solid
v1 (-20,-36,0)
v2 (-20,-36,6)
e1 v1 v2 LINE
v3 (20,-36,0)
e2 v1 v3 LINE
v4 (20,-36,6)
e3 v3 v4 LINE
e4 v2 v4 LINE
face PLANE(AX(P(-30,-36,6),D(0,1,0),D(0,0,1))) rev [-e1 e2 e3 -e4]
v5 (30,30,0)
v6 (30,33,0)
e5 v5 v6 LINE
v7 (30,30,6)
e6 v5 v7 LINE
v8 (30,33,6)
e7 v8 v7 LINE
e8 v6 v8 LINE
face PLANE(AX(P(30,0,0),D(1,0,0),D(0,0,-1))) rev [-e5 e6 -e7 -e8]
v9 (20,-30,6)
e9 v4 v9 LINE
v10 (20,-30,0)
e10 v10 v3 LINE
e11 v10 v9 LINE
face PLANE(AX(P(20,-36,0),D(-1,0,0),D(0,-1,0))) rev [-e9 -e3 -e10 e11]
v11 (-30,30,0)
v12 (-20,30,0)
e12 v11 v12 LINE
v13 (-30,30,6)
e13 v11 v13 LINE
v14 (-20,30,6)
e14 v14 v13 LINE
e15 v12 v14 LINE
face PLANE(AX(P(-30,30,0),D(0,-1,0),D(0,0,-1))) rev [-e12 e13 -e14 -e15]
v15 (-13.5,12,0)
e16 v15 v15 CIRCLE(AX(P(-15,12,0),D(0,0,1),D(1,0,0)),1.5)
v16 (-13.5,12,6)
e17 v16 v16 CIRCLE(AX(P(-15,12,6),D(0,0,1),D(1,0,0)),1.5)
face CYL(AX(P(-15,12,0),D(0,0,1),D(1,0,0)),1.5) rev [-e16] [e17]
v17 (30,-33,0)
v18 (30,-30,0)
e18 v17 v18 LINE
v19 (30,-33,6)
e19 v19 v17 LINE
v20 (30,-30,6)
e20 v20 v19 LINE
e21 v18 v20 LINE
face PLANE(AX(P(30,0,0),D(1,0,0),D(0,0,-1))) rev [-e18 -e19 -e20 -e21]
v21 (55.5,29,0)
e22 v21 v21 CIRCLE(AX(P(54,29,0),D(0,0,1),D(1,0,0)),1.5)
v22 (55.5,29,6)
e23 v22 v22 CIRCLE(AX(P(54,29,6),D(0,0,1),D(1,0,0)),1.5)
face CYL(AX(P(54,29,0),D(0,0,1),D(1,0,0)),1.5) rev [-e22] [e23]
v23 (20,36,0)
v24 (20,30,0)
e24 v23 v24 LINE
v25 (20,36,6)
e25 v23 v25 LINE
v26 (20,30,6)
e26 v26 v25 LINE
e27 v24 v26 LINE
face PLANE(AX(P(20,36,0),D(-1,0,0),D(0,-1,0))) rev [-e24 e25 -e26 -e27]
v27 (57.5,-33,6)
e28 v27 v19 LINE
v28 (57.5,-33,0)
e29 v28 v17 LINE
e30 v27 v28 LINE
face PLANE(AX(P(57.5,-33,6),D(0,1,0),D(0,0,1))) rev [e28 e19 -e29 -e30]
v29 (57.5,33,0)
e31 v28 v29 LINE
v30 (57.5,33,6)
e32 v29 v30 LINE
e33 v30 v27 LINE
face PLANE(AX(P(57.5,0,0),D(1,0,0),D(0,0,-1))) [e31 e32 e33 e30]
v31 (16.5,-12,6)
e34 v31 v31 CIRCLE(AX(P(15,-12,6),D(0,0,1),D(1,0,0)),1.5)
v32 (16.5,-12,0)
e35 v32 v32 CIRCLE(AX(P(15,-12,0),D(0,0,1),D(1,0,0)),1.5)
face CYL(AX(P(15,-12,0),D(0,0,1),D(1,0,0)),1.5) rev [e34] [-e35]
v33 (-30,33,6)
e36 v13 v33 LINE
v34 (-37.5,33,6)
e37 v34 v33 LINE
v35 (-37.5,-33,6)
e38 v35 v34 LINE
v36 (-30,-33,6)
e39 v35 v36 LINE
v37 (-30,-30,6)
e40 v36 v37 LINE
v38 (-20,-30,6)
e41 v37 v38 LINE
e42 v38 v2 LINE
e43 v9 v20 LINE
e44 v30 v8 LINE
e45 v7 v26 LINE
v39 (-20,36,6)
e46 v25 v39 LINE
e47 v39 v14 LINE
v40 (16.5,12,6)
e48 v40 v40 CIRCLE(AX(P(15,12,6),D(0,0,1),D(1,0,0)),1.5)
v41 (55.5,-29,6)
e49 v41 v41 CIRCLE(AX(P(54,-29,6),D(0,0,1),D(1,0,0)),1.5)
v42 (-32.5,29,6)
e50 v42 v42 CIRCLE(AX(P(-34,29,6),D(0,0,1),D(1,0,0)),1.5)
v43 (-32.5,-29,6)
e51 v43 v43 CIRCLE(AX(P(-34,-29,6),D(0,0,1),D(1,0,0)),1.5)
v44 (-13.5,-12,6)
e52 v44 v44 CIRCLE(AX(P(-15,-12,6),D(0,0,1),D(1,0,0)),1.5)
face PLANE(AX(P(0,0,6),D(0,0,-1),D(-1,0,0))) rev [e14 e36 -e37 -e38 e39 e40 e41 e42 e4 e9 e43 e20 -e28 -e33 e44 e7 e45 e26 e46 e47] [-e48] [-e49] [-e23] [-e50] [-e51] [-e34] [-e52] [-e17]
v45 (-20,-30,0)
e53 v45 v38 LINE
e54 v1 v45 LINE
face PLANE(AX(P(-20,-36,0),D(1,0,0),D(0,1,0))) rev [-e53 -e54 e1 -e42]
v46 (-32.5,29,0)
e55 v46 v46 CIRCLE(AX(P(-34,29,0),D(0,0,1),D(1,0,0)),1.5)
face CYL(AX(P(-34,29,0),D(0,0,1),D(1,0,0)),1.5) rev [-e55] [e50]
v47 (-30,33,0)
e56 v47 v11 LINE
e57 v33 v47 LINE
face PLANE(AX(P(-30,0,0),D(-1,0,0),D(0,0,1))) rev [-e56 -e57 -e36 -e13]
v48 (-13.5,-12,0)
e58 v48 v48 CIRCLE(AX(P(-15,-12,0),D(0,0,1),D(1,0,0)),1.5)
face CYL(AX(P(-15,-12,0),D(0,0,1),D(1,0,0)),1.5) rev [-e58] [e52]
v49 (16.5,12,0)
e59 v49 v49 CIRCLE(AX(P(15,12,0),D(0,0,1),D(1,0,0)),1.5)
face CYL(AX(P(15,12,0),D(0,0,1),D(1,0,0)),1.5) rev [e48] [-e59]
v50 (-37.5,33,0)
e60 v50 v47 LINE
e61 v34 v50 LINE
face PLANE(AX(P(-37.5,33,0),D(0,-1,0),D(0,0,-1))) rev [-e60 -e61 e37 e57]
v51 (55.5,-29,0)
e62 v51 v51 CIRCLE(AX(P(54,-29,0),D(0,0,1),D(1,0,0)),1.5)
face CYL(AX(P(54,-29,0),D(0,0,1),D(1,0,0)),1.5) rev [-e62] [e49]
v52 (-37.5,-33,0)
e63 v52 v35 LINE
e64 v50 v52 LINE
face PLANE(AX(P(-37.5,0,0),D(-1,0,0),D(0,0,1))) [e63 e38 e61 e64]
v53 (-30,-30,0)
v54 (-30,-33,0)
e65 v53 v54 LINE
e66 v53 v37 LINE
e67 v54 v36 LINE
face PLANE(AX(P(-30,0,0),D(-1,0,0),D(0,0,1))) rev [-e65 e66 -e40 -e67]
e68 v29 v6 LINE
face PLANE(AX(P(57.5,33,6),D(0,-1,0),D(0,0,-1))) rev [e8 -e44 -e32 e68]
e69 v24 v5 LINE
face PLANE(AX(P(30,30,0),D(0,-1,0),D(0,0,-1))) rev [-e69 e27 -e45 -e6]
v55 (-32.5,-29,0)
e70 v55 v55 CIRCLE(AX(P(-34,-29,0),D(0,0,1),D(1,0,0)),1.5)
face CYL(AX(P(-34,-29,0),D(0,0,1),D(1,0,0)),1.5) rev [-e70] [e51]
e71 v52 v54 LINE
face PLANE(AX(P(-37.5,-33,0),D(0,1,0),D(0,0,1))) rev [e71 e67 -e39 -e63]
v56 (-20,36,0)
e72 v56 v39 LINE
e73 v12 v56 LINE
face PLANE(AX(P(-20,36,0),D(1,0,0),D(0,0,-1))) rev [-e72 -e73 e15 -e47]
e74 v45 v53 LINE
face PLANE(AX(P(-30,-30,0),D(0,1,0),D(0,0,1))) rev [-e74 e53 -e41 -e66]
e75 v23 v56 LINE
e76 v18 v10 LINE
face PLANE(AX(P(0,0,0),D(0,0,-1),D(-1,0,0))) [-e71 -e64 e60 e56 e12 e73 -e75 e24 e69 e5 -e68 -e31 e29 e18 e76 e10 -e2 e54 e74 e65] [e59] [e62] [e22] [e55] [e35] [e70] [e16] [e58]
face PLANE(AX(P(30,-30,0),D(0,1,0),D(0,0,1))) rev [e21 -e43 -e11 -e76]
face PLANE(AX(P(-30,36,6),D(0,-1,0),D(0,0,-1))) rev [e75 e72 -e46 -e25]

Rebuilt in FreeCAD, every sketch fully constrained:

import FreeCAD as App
import Part
import Sketcher

doc = App.newDocument("Part")
body = doc.addObject("PartDesign::Body", "Body")

sketch1 = doc.addObject("Sketcher::SketchObject", "Sketch")
body.addObject(sketch1)
sketch1.AttachmentSupport = (doc.XY_Plane, [""])
sketch1.MapMode = "FlatFace"
sketch1.addGeometry(Part.LineSegment(App.Vector(-30, 36, 0), App.Vector(-30, -36, 0)), False)
sketch1.addGeometry(Part.LineSegment(App.Vector(-30, -36, 0), App.Vector(30, -36, 0)), False)
sketch1.addGeometry(Part.LineSegment(App.Vector(30, -36, 0), App.Vector(30, 36, 0)), False)
sketch1.addGeometry(Part.LineSegment(App.Vector(30, 36, 0), App.Vector(-30, 36, 0)), False)
sketch1.addConstraint(Sketcher.Constraint("Coincident", 0, 2, 1, 1))
sketch1.addConstraint(Sketcher.Constraint("Coincident", 1, 2, 2, 1))
sketch1.addConstraint(Sketcher.Constraint("Coincident", 2, 2, 3, 1))
sketch1.addConstraint(Sketcher.Constraint("Coincident", 3, 2, 0, 1))
sketch1.addConstraint(Sketcher.Constraint("Vertical", 0))
sketch1.addConstraint(Sketcher.Constraint("Horizontal", 1))
sketch1.addConstraint(Sketcher.Constraint("Vertical", 2))
sketch1.addConstraint(Sketcher.Constraint("Horizontal", 3))
sketch1.addConstraint(Sketcher.Constraint("Symmetric", 0, 2, 2, 2, -1, 1))
sketch1.addConstraint(Sketcher.Constraint("DistanceX", 1, 1, 1, 2, 60.0))
sketch1.addConstraint(Sketcher.Constraint("DistanceY", 0, 2, 0, 1, 72.0))
pad1 = doc.addObject("PartDesign::Pad", "Pad")
body.addObject(pad1)
pad1.Profile = sketch1
pad1.Length = 6

sketch2 = doc.addObject("Sketcher::SketchObject", "Sketch001")
body.addObject(sketch2)
sketch2.AttachmentSupport = (doc.XY_Plane, [""])
sketch2.MapMode = "FlatFace"
sketch2.AttachmentOffset = App.Placement(App.Vector(0, 0, 6), App.Rotation())
sketch2.addGeometry(Part.LineSegment(App.Vector(-30, 36, 0), App.Vector(-30, 30, 0)), False)
sketch2.addGeometry(Part.LineSegment(App.Vector(-30, 30, 0), App.Vector(-20, 30, 0)), False)
sketch2.addGeometry(Part.LineSegment(App.Vector(-20, 30, 0), App.Vector(-20, 36, 0)), False)
sketch2.addGeometry(Part.LineSegment(App.Vector(-20, 36, 0), App.Vector(-30, 36, 0)), False)
sketch2.addGeometry(Part.LineSegment(App.Vector(-30, -30, 0), App.Vector(-30, -36, 0)), False)
sketch2.addGeometry(Part.LineSegment(App.Vector(-30, -36, 0), App.Vector(-20, -36, 0)), False)
sketch2.addGeometry(Part.LineSegment(App.Vector(-20, -36, 0), App.Vector(-20, -30, 0)), False)
sketch2.addGeometry(Part.LineSegment(App.Vector(-20, -30, 0), App.Vector(-30, -30, 0)), False)
sketch2.addGeometry(Part.LineSegment(App.Vector(20, -30, 0), App.Vector(20, -36, 0)), False)
sketch2.addGeometry(Part.LineSegment(App.Vector(20, -36, 0), App.Vector(30, -36, 0)), False)
sketch2.addGeometry(Part.LineSegment(App.Vector(30, -36, 0), App.Vector(30, -30, 0)), False)
sketch2.addGeometry(Part.LineSegment(App.Vector(30, -30, 0), App.Vector(20, -30, 0)), False)
sketch2.addGeometry(Part.LineSegment(App.Vector(20, 36, 0), App.Vector(20, 30, 0)), False)
sketch2.addGeometry(Part.LineSegment(App.Vector(20, 30, 0), App.Vector(30, 30, 0)), False)
sketch2.addGeometry(Part.LineSegment(App.Vector(30, 30, 0), App.Vector(30, 36, 0)), False)
sketch2.addGeometry(Part.LineSegment(App.Vector(30, 36, 0), App.Vector(20, 36, 0)), False)
sketch2.addConstraint(Sketcher.Constraint("Coincident", 0, 2, 1, 1))
sketch2.addConstraint(Sketcher.Constraint("Coincident", 1, 2, 2, 1))
sketch2.addConstraint(Sketcher.Constraint("Coincident", 2, 2, 3, 1))
sketch2.addConstraint(Sketcher.Constraint("Coincident", 3, 2, 0, 1))
sketch2.addConstraint(Sketcher.Constraint("Coincident", 4, 2, 5, 1))
sketch2.addConstraint(Sketcher.Constraint("Coincident", 5, 2, 6, 1))
sketch2.addConstraint(Sketcher.Constraint("Coincident", 6, 2, 7, 1))
sketch2.addConstraint(Sketcher.Constraint("Coincident", 7, 2, 4, 1))
sketch2.addConstraint(Sketcher.Constraint("Coincident", 8, 2, 9, 1))
sketch2.addConstraint(Sketcher.Constraint("Coincident", 9, 2, 10, 1))
sketch2.addConstraint(Sketcher.Constraint("Coincident", 10, 2, 11, 1))
sketch2.addConstraint(Sketcher.Constraint("Coincident", 11, 2, 8, 1))
sketch2.addConstraint(Sketcher.Constraint("Coincident", 12, 2, 13, 1))
sketch2.addConstraint(Sketcher.Constraint("Coincident", 13, 2, 14, 1))
sketch2.addConstraint(Sketcher.Constraint("Coincident", 14, 2, 15, 1))
sketch2.addConstraint(Sketcher.Constraint("Coincident", 15, 2, 12, 1))
sketch2.addConstraint(Sketcher.Constraint("Vertical", 0))
sketch2.addConstraint(Sketcher.Constraint("Horizontal", 1))
sketch2.addConstraint(Sketcher.Constraint("Vertical", 2))
sketch2.addConstraint(Sketcher.Constraint("Horizontal", 3))
sketch2.addConstraint(Sketcher.Constraint("Vertical", 4))
sketch2.addConstraint(Sketcher.Constraint("Horizontal", 5))
sketch2.addConstraint(Sketcher.Constraint("Vertical", 6))
sketch2.addConstraint(Sketcher.Constraint("Horizontal", 7))
sketch2.addConstraint(Sketcher.Constraint("Vertical", 8))
sketch2.addConstraint(Sketcher.Constraint("Horizontal", 9))
sketch2.addConstraint(Sketcher.Constraint("Vertical", 10))
sketch2.addConstraint(Sketcher.Constraint("Horizontal", 11))
sketch2.addConstraint(Sketcher.Constraint("Vertical", 12))
sketch2.addConstraint(Sketcher.Constraint("Horizontal", 13))
sketch2.addConstraint(Sketcher.Constraint("Vertical", 14))
sketch2.addConstraint(Sketcher.Constraint("Horizontal", 15))
sketch2.addConstraint(Sketcher.Constraint("Symmetric", 2, 2, 8, 2, -1, 1))
sketch2.addConstraint(Sketcher.Constraint("Symmetric", 0, 2, 10, 2, -1, 1))
sketch2.addConstraint(Sketcher.Constraint("Symmetric", 6, 2, 12, 2, -1, 1))
sketch2.addConstraint(Sketcher.Constraint("Symmetric", 4, 2, 14, 2, -1, 1))
sketch2.addConstraint(Sketcher.Constraint("Symmetric", 5, 2, 8, 2, -2))
sketch2.addConstraint(Sketcher.Constraint("Symmetric", 7, 2, 10, 2, -2))
sketch2.addConstraint(Sketcher.Constraint("DistanceX", 1, 1, 1, 2, 10.0))
sketch2.addConstraint(Sketcher.Constraint("DistanceY", 0, 2, 0, 1, 6.0))
sketch2.addConstraint(Sketcher.Constraint("DistanceX", 0, 2, -1, 1, 30.0))
sketch2.addConstraint(Sketcher.Constraint("DistanceY", -1, 1, 0, 2, 30.0))
pocket1 = doc.addObject("PartDesign::Pocket", "Pocket")
body.addObject(pocket1)
pocket1.Profile = sketch2
pocket1.Type = "ThroughAll"
pocket1.Midplane = True

sketch3 = doc.addObject("Sketcher::SketchObject", "Sketch002")
body.addObject(sketch3)
sketch3.AttachmentSupport = (doc.XY_Plane, [""])
sketch3.MapMode = "FlatFace"
sketch3.AttachmentOffset = App.Placement(App.Vector(0, 0, 6), App.Rotation())
sketch3.addGeometry(Part.Circle(App.Vector(-15, 12, 0), App.Vector(0, 0, 1), 1.5), False)
sketch3.addGeometry(Part.Circle(App.Vector(-15, -12, 0), App.Vector(0, 0, 1), 1.5), False)
sketch3.addGeometry(Part.Circle(App.Vector(15, -12, 0), App.Vector(0, 0, 1), 1.5), False)
sketch3.addGeometry(Part.Circle(App.Vector(15, 12, 0), App.Vector(0, 0, 1), 1.5), False)
sketch3.addConstraint(Sketcher.Constraint("Equal", 0, 1))
sketch3.addConstraint(Sketcher.Constraint("Equal", 1, 2))
sketch3.addConstraint(Sketcher.Constraint("Equal", 2, 3))
sketch3.addConstraint(Sketcher.Constraint("Symmetric", 0, 3, 2, 3, -1, 1))
sketch3.addConstraint(Sketcher.Constraint("Symmetric", 1, 3, 3, 3, -1, 1))
sketch3.addConstraint(Sketcher.Constraint("Symmetric", 1, 3, 2, 3, -2))
sketch3.addConstraint(Sketcher.Constraint("Diameter", 0, 3.0))
sketch3.addConstraint(Sketcher.Constraint("DistanceX", 0, 3, -1, 1, 15.0))
sketch3.addConstraint(Sketcher.Constraint("DistanceY", -1, 1, 0, 3, 12.0))
pocket2 = doc.addObject("PartDesign::Pocket", "Pocket001")
body.addObject(pocket2)
pocket2.Profile = sketch3
pocket2.Type = "ThroughAll"
pocket2.Midplane = True

sketch4 = doc.addObject("Sketcher::SketchObject", "Sketch003")
body.addObject(sketch4)
sketch4.AttachmentSupport = (doc.YZ_Plane, [""])
sketch4.MapMode = "FlatFace"
sketch4.AttachmentOffset = App.Placement(App.Vector(0, 0, 30), App.Rotation())
sketch4.addGeometry(Part.LineSegment(App.Vector(33, 6, 0), App.Vector(-33, 6, 0)), False)
sketch4.addGeometry(Part.LineSegment(App.Vector(-33, 6, 0), App.Vector(-33, 0, 0)), False)
sketch4.addGeometry(Part.LineSegment(App.Vector(-33, 0, 0), App.Vector(33, 0, 0)), False)
sketch4.addGeometry(Part.LineSegment(App.Vector(33, 0, 0), App.Vector(33, 6, 0)), False)
sketch4.addConstraint(Sketcher.Constraint("Coincident", 0, 2, 1, 1))
sketch4.addConstraint(Sketcher.Constraint("Coincident", 1, 2, 2, 1))
sketch4.addConstraint(Sketcher.Constraint("Coincident", 2, 2, 3, 1))
sketch4.addConstraint(Sketcher.Constraint("Coincident", 3, 2, 0, 1))
sketch4.addConstraint(Sketcher.Constraint("Horizontal", 0))
sketch4.addConstraint(Sketcher.Constraint("Vertical", 1))
sketch4.addConstraint(Sketcher.Constraint("Horizontal", 2))
sketch4.addConstraint(Sketcher.Constraint("Vertical", 3))
sketch4.addConstraint(Sketcher.Constraint("Symmetric", 1, 2, 2, 2, -1, 1))
sketch4.addConstraint(Sketcher.Constraint("DistanceX", 0, 2, 0, 1, 66.0))
sketch4.addConstraint(Sketcher.Constraint("DistanceY", 1, 2, 1, 1, 6.0))
pad2 = doc.addObject("PartDesign::Pad", "Pad001")
body.addObject(pad2)
pad2.Profile = sketch4
pad2.Length = 27.5

sketch5 = doc.addObject("Sketcher::SketchObject", "Sketch004")
body.addObject(sketch5)
sketch5.AttachmentSupport = (doc.YZ_Plane, [""])
sketch5.MapMode = "FlatFace"
sketch5.AttachmentOffset = App.Placement(App.Vector(0, 0, -30), App.Rotation())
sketch5.addGeometry(Part.LineSegment(App.Vector(33, 0, 0), App.Vector(-33, 0, 0)), False)
sketch5.addGeometry(Part.LineSegment(App.Vector(-33, 0, 0), App.Vector(-33, 6, 0)), False)
sketch5.addGeometry(Part.LineSegment(App.Vector(-33, 6, 0), App.Vector(33, 6, 0)), False)
sketch5.addGeometry(Part.LineSegment(App.Vector(33, 6, 0), App.Vector(33, 0, 0)), False)
sketch5.addConstraint(Sketcher.Constraint("Coincident", 0, 2, 1, 1))
sketch5.addConstraint(Sketcher.Constraint("Coincident", 1, 2, 2, 1))
sketch5.addConstraint(Sketcher.Constraint("Coincident", 2, 2, 3, 1))
sketch5.addConstraint(Sketcher.Constraint("Coincident", 3, 2, 0, 1))
sketch5.addConstraint(Sketcher.Constraint("Horizontal", 0))
sketch5.addConstraint(Sketcher.Constraint("Vertical", 1))
sketch5.addConstraint(Sketcher.Constraint("Horizontal", 2))
sketch5.addConstraint(Sketcher.Constraint("Vertical", 3))
sketch5.addConstraint(Sketcher.Constraint("Symmetric", 0, 2, 3, 2, -1, 1))
sketch5.addConstraint(Sketcher.Constraint("DistanceX", 0, 2, 0, 1, 66.0))
sketch5.addConstraint(Sketcher.Constraint("DistanceY", 1, 1, 1, 2, 6.0))
pad3 = doc.addObject("PartDesign::Pad", "Pad002")
body.addObject(pad3)
pad3.Profile = sketch5
pad3.Length = 7.5
pad3.Reversed = True

sketch6 = doc.addObject("Sketcher::SketchObject", "Sketch005")
body.addObject(sketch6)
sketch6.AttachmentSupport = (doc.XY_Plane, [""])
sketch6.MapMode = "FlatFace"
sketch6.AttachmentOffset = App.Placement(App.Vector(0, 0, 6), App.Rotation())
sketch6.addGeometry(Part.Circle(App.Vector(54, -29, 0), App.Vector(0, 0, 1), 1.5), False)
sketch6.addGeometry(Part.Circle(App.Vector(54, 29, 0), App.Vector(0, 0, 1), 1.5), False)
sketch6.addGeometry(Part.Circle(App.Vector(-34, 29, 0), App.Vector(0, 0, 1), 1.5), False)
sketch6.addGeometry(Part.Circle(App.Vector(-34, -29, 0), App.Vector(0, 0, 1), 1.5), False)
sketch6.addConstraint(Sketcher.Constraint("Equal", 0, 1))
sketch6.addConstraint(Sketcher.Constraint("Equal", 1, 2))
sketch6.addConstraint(Sketcher.Constraint("Equal", 2, 3))
sketch6.addConstraint(Sketcher.Constraint("Symmetric", 0, 3, 1, 3, -1))
sketch6.addConstraint(Sketcher.Constraint("Symmetric", 2, 3, 3, 3, -1))
sketch6.addConstraint(Sketcher.Constraint("Horizontal", 1, 3, 2, 3))
sketch6.addConstraint(Sketcher.Constraint("Diameter", 0, 3.0))
sketch6.addConstraint(Sketcher.Constraint("DistanceX", -1, 1, 0, 3, 54.0))
sketch6.addConstraint(Sketcher.Constraint("DistanceY", 0, 3, -1, 1, 29.0))
sketch6.addConstraint(Sketcher.Constraint("DistanceX", 2, 3, -1, 1, 34.0))
pocket3 = doc.addObject("PartDesign::Pocket", "Pocket002")
body.addObject(pocket3)
pocket3.Profile = sketch6
pocket3.Type = "ThroughAll"

doc.recompute()
